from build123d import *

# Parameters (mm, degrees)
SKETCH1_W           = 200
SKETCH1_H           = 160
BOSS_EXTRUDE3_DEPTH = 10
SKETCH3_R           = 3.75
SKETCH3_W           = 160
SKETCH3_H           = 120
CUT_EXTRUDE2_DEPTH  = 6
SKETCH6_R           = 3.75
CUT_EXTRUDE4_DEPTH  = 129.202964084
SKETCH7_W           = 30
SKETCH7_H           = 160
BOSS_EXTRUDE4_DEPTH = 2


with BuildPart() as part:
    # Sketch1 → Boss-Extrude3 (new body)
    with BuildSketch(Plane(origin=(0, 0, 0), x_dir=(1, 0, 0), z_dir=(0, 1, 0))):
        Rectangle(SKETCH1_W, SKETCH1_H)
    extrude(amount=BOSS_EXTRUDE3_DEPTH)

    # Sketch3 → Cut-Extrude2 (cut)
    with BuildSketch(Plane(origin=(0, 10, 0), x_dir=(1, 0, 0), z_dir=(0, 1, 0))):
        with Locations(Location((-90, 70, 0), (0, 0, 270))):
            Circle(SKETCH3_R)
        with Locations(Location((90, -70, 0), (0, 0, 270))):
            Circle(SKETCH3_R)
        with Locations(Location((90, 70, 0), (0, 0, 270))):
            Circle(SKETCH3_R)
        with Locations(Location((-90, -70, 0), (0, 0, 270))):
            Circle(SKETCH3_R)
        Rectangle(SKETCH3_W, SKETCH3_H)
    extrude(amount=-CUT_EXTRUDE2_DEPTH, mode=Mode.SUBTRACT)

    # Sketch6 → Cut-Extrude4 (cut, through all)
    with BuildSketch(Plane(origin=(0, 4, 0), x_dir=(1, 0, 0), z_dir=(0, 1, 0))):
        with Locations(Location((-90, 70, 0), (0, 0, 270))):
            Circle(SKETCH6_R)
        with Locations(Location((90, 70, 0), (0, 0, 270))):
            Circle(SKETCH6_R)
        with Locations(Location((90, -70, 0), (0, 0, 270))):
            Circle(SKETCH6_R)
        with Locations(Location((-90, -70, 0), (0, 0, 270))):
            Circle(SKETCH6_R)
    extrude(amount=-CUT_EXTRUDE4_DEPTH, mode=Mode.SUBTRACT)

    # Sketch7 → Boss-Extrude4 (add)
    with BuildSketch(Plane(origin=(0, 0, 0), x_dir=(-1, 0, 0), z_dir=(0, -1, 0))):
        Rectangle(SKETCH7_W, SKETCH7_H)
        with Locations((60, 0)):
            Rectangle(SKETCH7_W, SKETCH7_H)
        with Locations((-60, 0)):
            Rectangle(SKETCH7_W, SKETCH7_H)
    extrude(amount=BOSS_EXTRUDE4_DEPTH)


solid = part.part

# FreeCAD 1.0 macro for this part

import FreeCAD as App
import Part
import Sketcher

V = App.Vector

doc = App.newDocument("Part")
body = doc.addObject("PartDesign::Body", "Body")

# Sketch on XZ plane
sketch1 = body.newObject("Sketcher::SketchObject", "Sketch")
sketch1.AttachmentSupport = (doc.getObject("XZ_Plane"), [""])
sketch1.MapMode = "FlatFace"
sketch1.addGeometry([
    Part.LineSegment(V(-100, -80, 0), V(-100, 80, 0)),
    Part.LineSegment(V(-100, 80, 0), V(100, 80, 0)),
    Part.LineSegment(V(100, 80, 0), V(100, -80, 0)),
    Part.LineSegment(V(100, -80, 0), V(-100, -80, 0)),
], False)
sketch1.addConstraint([
    Sketcher.Constraint("Coincident", 0, 2, 1, 1),
    Sketcher.Constraint("Coincident", 1, 2, 2, 1),
    Sketcher.Constraint("Coincident", 2, 2, 3, 1),
    Sketcher.Constraint("Coincident", 3, 2, 0, 1),
    Sketcher.Constraint("Vertical", 0),
    Sketcher.Constraint("Horizontal", 1),
    Sketcher.Constraint("Vertical", 2),
    Sketcher.Constraint("Horizontal", 3),
    Sketcher.Constraint("Symmetric", 0, 2, 2, 2, -1, 1),
    Sketcher.Constraint("DistanceX", 1, 1, 1, 2, 200.0),
    Sketcher.Constraint("DistanceY", 0, 1, 0, 2, 160.0),
])
pad1 = body.newObject("PartDesign::Pad", "Pad")
pad1.Profile = sketch1
pad1.Length = 10
pad1.Reversed = True

# Sketch on XZ plane
sketch2 = body.newObject("Sketcher::SketchObject", "Sketch001")
sketch2.AttachmentSupport = (doc.getObject("XZ_Plane"), [""])
sketch2.MapMode = "FlatFace"
sketch2.AttachmentOffset = App.Placement(V(0, 0, -10), App.Rotation())
sketch2.addGeometry([
    Part.Circle(V(-90, -70, 0), V(0, 0, 1), 3.75),  # 0
    Part.Circle(V(90, 70, 0), V(0, 0, 1), 3.75),  # 1
    Part.Circle(V(90, -70, 0), V(0, 0, 1), 3.75),  # 2
    Part.Circle(V(-90, 70, 0), V(0, 0, 1), 3.75),  # 3
    Part.LineSegment(V(-80, -60, 0), V(-80, 60, 0)),  # 4
    Part.LineSegment(V(-80, 60, 0), V(80, 60, 0)),  # 5
    Part.LineSegment(V(80, 60, 0), V(80, -60, 0)),  # 6
    Part.LineSegment(V(80, -60, 0), V(-80, -60, 0)),  # 7
], False)
sketch2.addConstraint([
    Sketcher.Constraint("Coincident", 4, 2, 5, 1),
    Sketcher.Constraint("Coincident", 5, 2, 6, 1),
    Sketcher.Constraint("Coincident", 6, 2, 7, 1),
    Sketcher.Constraint("Coincident", 7, 2, 4, 1),
    Sketcher.Constraint("Vertical", 4),
    Sketcher.Constraint("Horizontal", 5),
    Sketcher.Constraint("Vertical", 6),
    Sketcher.Constraint("Horizontal", 7),
    Sketcher.Constraint("Equal", 0, 1),
    Sketcher.Constraint("Equal", 1, 2),
    Sketcher.Constraint("Equal", 2, 3),
    Sketcher.Constraint("Symmetric", 0, 3, 1, 3, -1, 1),
    Sketcher.Constraint("Symmetric", 2, 3, 3, 3, -1, 1),
    Sketcher.Constraint("Symmetric", 4, 2, 6, 2, -1, 1),
    Sketcher.Constraint("Symmetric", 0, 3, 2, 3, -2),
    Sketcher.Constraint("Diameter", 0, 7.5),
    Sketcher.Constraint("DistanceX", 5, 1, 5, 2, 160.0),
    Sketcher.Constraint("DistanceY", 4, 1, 4, 2, 120.0),
    Sketcher.Constraint("DistanceX", 0, 3, -1, 1, 90.0),
    Sketcher.Constraint("DistanceY", 0, 3, -1, 1, 70.0),
])
pocket1 = body.newObject("PartDesign::Pocket", "Pocket")
pocket1.Profile = sketch2
pocket1.Length = 6
pocket1.Reversed = True

# Sketch on XZ plane
sketch3 = body.newObject("Sketcher::SketchObject", "Sketch002")
sketch3.AttachmentSupport = (doc.getObject("XZ_Plane"), [""])
sketch3.MapMode = "FlatFace"
sketch3.AttachmentOffset = App.Placement(V(0, 0, -4), App.Rotation())
sketch3.addGeometry([
    Part.Circle(V(-90, -70, 0), V(0, 0, 1), 3.75),
    Part.Circle(V(90, -70, 0), V(0, 0, 1), 3.75),
    Part.Circle(V(90, 70, 0), V(0, 0, 1), 3.75),
    Part.Circle(V(-90, 70, 0), V(0, 0, 1), 3.75),
], False)
sketch3.addConstraint([
    Sketcher.Constraint("Equal", 0, 1),
    Sketcher.Constraint("Equal", 1, 2),
    Sketcher.Constraint("Equal", 2, 3),
    Sketcher.Constraint("Symmetric", 0, 3, 2, 3, -1, 1),
    Sketcher.Constraint("Symmetric", 1, 3, 3, 3, -1, 1),
    Sketcher.Constraint("Symmetric", 0, 3, 1, 3, -2),
    Sketcher.Constraint("Diameter", 0, 7.5),
    Sketcher.Constraint("DistanceX", 0, 3, -1, 1, 90.0),
    Sketcher.Constraint("DistanceY", 0, 3, -1, 1, 70.0),
])
pocket2 = body.newObject("PartDesign::Pocket", "Pocket001")
pocket2.Profile = sketch3
pocket2.Type = "ThroughAll"
pocket2.Reversed = True

# Sketch on XZ plane
sketch4 = body.newObject("Sketcher::SketchObject", "Sketch003")
sketch4.AttachmentSupport = (doc.getObject("XZ_Plane"), [""])
sketch4.MapMode = "FlatFace"
sketch4.addGeometry([
    Part.LineSegment(V(15, -80, 0), V(15, 80, 0)),  # 0
    Part.LineSegment(V(15, 80, 0), V(-15, 80, 0)),  # 1
    Part.LineSegment(V(-15, 80, 0), V(-15, -80, 0)),  # 2
    Part.LineSegment(V(-15, -80, 0), V(15, -80, 0)),  # 3
    Part.LineSegment(V(-45, -80, 0), V(-45, 80, 0)),  # 4
    Part.LineSegment(V(-45, 80, 0), V(-75, 80, 0)),  # 5
    Part.LineSegment(V(-75, 80, 0), V(-75, -80, 0)),  # 6
    Part.LineSegment(V(-75, -80, 0), V(-45, -80, 0)),  # 7
    Part.LineSegment(V(75, -80, 0), V(75, 80, 0)),  # 8
    Part.LineSegment(V(75, 80, 0), V(45, 80, 0)),  # 9
    Part.LineSegment(V(45, 80, 0), V(45, -80, 0)),  # 10
    Part.LineSegment(V(45, -80, 0), V(75, -80, 0)),  # 11
], False)
sketch4.addConstraint([
    Sketcher.Constraint("Coincident", 0, 2, 1, 1),
    Sketcher.Constraint("Coincident", 1, 2, 2, 1),
    Sketcher.Constraint("Coincident", 2, 2, 3, 1),
    Sketcher.Constraint("Coincident", 3, 2, 0, 1),
    Sketcher.Constraint("Coincident", 4, 2, 5, 1),
    Sketcher.Constraint("Coincident", 5, 2, 6, 1),
    Sketcher.Constraint("Coincident", 6, 2, 7, 1),
    Sketcher.Constraint("Coincident", 7, 2, 4, 1),
    Sketcher.Constraint("Coincident", 8, 2, 9, 1),
    Sketcher.Constraint("Coincident", 9, 2, 10, 1),
    Sketcher.Constraint("Coincident", 10, 2, 11, 1),
    Sketcher.Constraint("Coincident", 11, 2, 8, 1),
    Sketcher.Constraint("Vertical", 0),
    Sketcher.Constraint("Horizontal", 1),
    Sketcher.Constraint("Vertical", 2),
    Sketcher.Constraint("Horizontal", 3),
    Sketcher.Constraint("Vertical", 4),
    Sketcher.Constraint("Horizontal", 5),
    Sketcher.Constraint("Vertical", 6),
    Sketcher.Constraint("Horizontal", 7),
    Sketcher.Constraint("Vertical", 8),
    Sketcher.Constraint("Horizontal", 9),
    Sketcher.Constraint("Vertical", 10),
    Sketcher.Constraint("Horizontal", 11),
    Sketcher.Constraint("Symmetric", 0, 2, 2, 2, -1, 1),
    Sketcher.Constraint("Symmetric", 6, 2, 8, 2, -1, 1),
    Sketcher.Constraint("Symmetric", 4, 2, 10, 2, -1, 1),
    Sketcher.Constraint("Horizontal", 1, 2, 4, 2),
    Sketcher.Constraint("Horizontal", 3, 2, 6, 2),
    Sketcher.Constraint("Equal", 3, 5),
    Sketcher.Constraint("DistanceX", 1, 2, 1, 1, 30.0),
    Sketcher.Constraint("DistanceY", 0, 1, 0, 2, 160.0),
    Sketcher.Constraint("DistanceX", 4, 2, -1, 1, 45.0),
])
pad2 = body.newObject("PartDesign::Pad", "Pad001")
pad2.Profile = sketch4
pad2.Length = 2

doc.recompute()
